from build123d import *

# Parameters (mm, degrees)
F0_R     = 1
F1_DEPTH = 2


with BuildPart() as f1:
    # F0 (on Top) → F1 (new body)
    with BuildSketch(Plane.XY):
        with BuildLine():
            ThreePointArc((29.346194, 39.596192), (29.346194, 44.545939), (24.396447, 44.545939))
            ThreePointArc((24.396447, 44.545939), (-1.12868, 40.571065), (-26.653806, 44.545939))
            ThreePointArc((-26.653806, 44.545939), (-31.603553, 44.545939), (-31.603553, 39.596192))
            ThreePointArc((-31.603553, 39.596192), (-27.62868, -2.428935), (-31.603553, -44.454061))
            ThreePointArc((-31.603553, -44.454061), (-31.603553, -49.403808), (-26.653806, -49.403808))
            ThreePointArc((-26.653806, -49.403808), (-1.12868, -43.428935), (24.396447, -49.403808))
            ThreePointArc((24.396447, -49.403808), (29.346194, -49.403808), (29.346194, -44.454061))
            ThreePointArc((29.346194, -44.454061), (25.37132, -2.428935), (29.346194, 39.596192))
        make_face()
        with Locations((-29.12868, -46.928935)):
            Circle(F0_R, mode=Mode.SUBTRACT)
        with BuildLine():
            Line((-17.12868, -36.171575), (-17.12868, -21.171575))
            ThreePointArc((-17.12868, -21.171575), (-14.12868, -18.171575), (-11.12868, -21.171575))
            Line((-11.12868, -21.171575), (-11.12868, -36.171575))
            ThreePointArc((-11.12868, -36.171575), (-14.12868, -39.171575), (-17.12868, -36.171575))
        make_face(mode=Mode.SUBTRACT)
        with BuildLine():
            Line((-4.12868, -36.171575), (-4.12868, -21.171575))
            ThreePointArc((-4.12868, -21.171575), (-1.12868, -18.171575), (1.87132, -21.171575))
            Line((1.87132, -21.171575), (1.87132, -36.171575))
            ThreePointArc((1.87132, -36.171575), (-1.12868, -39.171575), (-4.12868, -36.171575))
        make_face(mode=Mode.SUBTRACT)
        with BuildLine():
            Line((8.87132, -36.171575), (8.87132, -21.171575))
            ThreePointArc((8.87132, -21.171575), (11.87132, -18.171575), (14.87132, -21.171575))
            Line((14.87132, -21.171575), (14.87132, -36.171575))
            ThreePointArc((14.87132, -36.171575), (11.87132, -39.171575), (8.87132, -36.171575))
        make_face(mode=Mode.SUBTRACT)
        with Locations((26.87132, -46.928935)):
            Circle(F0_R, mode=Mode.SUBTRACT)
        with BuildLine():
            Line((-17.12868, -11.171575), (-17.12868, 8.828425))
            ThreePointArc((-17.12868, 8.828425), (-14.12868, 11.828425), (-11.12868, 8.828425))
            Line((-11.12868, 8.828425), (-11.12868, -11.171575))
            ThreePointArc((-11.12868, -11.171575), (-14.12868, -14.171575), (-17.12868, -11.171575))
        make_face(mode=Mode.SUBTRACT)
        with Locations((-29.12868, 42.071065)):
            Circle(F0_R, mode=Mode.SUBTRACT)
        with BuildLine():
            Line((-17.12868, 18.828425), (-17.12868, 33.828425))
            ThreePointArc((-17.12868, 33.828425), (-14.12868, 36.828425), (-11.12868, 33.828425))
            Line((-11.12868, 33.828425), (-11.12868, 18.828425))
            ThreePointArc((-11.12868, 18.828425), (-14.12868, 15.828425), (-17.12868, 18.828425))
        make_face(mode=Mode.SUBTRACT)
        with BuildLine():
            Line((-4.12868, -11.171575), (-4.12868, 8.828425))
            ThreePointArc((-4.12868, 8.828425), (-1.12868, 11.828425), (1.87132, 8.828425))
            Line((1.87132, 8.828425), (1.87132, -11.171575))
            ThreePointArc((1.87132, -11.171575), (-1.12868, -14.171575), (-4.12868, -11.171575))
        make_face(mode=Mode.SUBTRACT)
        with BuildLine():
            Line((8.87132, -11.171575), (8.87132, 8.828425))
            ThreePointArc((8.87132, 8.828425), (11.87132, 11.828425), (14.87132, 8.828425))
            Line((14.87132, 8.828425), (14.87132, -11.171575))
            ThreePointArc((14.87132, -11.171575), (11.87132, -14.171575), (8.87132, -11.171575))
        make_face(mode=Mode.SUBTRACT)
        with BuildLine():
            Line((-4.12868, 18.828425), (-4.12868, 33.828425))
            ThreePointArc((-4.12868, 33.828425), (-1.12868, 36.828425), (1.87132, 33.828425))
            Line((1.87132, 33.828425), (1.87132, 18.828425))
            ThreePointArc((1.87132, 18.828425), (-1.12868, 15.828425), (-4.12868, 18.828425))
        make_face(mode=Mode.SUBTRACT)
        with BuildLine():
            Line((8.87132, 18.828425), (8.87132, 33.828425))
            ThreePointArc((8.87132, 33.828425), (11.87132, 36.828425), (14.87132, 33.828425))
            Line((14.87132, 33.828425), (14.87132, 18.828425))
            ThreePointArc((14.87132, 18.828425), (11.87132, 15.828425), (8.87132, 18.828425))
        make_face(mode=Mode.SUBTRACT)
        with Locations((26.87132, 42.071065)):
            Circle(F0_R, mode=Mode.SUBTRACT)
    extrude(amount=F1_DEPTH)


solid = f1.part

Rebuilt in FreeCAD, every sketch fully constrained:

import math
import FreeCAD as App
import Part
import Sketcher

V = App.Vector
Q = App.Units.Quantity

doc = App.newDocument("Part")
body = doc.addObject("PartDesign::Body", "Body")

sketch1 = doc.addObject("Sketcher::SketchObject", "Sketch")
body.addObject(sketch1)
sketch1.AttachmentSupport = (doc.XY_Plane, [""])
sketch1.MapMode = "FlatFace"
sketch1.addGeometry([
    Part.ArcOfCircle(Part.Circle(V(26.87132, 42.071066, 0), V(0, 0, 1), 3.5), math.radians(-45), math.radians(135)),
    Part.ArcOfCircle(Part.Circle(V(-1.12868, 124.514821, 0), V(0, 0, 1), 83.943756), math.radians(-107.702471), math.radians(-72.297529)),
    Part.ArcOfCircle(Part.Circle(V(-29.12868, 42.071066, 0), V(0, 0, 1), 3.5), math.radians(45), math.radians(225)),
    Part.ArcOfCircle(Part.Circle(V(-251.775574, -2.428934, 0), V(0, 0, 1), 224.146894), math.radians(-10.806294), math.radians(10.806294)),
    Part.ArcOfCircle(Part.Circle(V(-29.12868, -46.928934, 0), V(0, 0, 1), 3.5), math.radians(135), math.radians(315)),
    Part.ArcOfCircle(Part.Circle(V(-1.12868, -100.939044, 0), V(0, 0, 1), 57.510109), math.radians(63.651032), math.radians(116.348968)),
    Part.ArcOfCircle(Part.Circle(V(26.87132, -46.928934, 0), V(0, 0, 1), 3.5), math.radians(-135), math.radians(45)),
    Part.ArcOfCircle(Part.Circle(V(249.518158, -2.428934, 0), V(0, 0, 1), 224.146838), math.radians(169.193703), math.radians(190.806297)),
    Part.Circle(V(-29.12868, -46.928935, 0), V(0, 0, 1), 1),
    Part.ArcOfCircle(Part.Circle(V(-14.12868, -36.171575, 0), V(0, 0, 1), 3), math.radians(180), math.radians(360)),
    Part.LineSegment(V(-17.12868, -36.171575, 0), V(-17.12868, -21.171575, 0)),
    Part.ArcOfCircle(Part.Circle(V(-14.12868, -21.171575, 0), V(0, 0, 1), 3), math.radians(0), math.radians(180)),
    Part.LineSegment(V(-11.12868, -21.171575, 0), V(-11.12868, -36.171575, 0)),
    Part.ArcOfCircle(Part.Circle(V(-1.12868, -36.171575, 0), V(0, 0, 1), 3), math.radians(180), math.radians(360)),
    Part.LineSegment(V(-4.12868, -36.171575, 0), V(-4.12868, -21.171575, 0)),
    Part.ArcOfCircle(Part.Circle(V(-1.12868, -21.171575, 0), V(0, 0, 1), 3), math.radians(0), math.radians(180)),
    Part.LineSegment(V(1.87132, -21.171575, 0), V(1.87132, -36.171575, 0)),
    Part.ArcOfCircle(Part.Circle(V(11.87132, -36.171575, 0), V(0, 0, 1), 3), math.radians(180), math.radians(360)),
    Part.LineSegment(V(8.87132, -36.171575, 0), V(8.87132, -21.171575, 0)),
    Part.ArcOfCircle(Part.Circle(V(11.87132, -21.171575, 0), V(0, 0, 1), 3), math.radians(0), math.radians(180)),
    Part.LineSegment(V(14.87132, -21.171575, 0), V(14.87132, -36.171575, 0)),
    Part.Circle(V(26.87132, -46.928935, 0), V(0, 0, 1), 1),
    Part.ArcOfCircle(Part.Circle(V(-14.12868, -11.171575, 0), V(0, 0, 1), 3), math.radians(180), math.radians(360)),
    Part.LineSegment(V(-17.12868, -11.171575, 0), V(-17.12868, 8.828425, 0)),
    Part.ArcOfCircle(Part.Circle(V(-14.12868, 8.828425, 0), V(0, 0, 1), 3), math.radians(0), math.radians(180)),
    Part.LineSegment(V(-11.12868, 8.828425, 0), V(-11.12868, -11.171575, 0)),
    Part.ArcOfCircle(Part.Circle(V(-1.12868, -11.171575, 0), V(0, 0, 1), 3), math.radians(180), math.radians(360)),
    Part.LineSegment(V(-4.12868, -11.171575, 0), V(-4.12868, 8.828425, 0)),
    Part.ArcOfCircle(Part.Circle(V(-1.12868, 8.828425, 0), V(0, 0, 1), 3), math.radians(0), math.radians(180)),
    Part.LineSegment(V(1.87132, 8.828425, 0), V(1.87132, -11.171575, 0)),
    Part.Circle(V(-29.12868, 42.071065, 0), V(0, 0, 1), 1),
    Part.ArcOfCircle(Part.Circle(V(-14.12868, 18.828425, 0), V(0, 0, 1), 3), math.radians(180), math.radians(360)),
    Part.LineSegment(V(-17.12868, 18.828425, 0), V(-17.12868, 33.828425, 0)),
    Part.ArcOfCircle(Part.Circle(V(-14.12868, 33.828425, 0), V(0, 0, 1), 3), math.radians(0), math.radians(180)),
    Part.LineSegment(V(-11.12868, 33.828425, 0), V(-11.12868, 18.828425, 0)),
    Part.ArcOfCircle(Part.Circle(V(-1.12868, 18.828425, 0), V(0, 0, 1), 3), math.radians(180), math.radians(360)),
    Part.LineSegment(V(-4.12868, 18.828425, 0), V(-4.12868, 33.828425, 0)),
    Part.ArcOfCircle(Part.Circle(V(-1.12868, 33.828425, 0), V(0, 0, 1), 3), math.radians(0), math.radians(180)),
    Part.LineSegment(V(1.87132, 33.828425, 0), V(1.87132, 18.828425, 0)),
    Part.ArcOfCircle(Part.Circle(V(11.87132, -11.171575, 0), V(0, 0, 1), 3), math.radians(180), math.radians(360)),
    Part.LineSegment(V(8.87132, -11.171575, 0), V(8.87132, 8.828425, 0)),
    Part.ArcOfCircle(Part.Circle(V(11.87132, 8.828425, 0), V(0, 0, 1), 3), math.radians(0), math.radians(180)),
    Part.LineSegment(V(14.87132, 8.828425, 0), V(14.87132, -11.171575, 0)),
    Part.ArcOfCircle(Part.Circle(V(11.87132, 18.828425, 0), V(0, 0, 1), 3), math.radians(180), math.radians(360)),
    Part.LineSegment(V(8.87132, 18.828425, 0), V(8.87132, 33.828425, 0)),
    Part.ArcOfCircle(Part.Circle(V(11.87132, 33.828425, 0), V(0, 0, 1), 3), math.radians(0), math.radians(180)),
    Part.LineSegment(V(14.87132, 33.828425, 0), V(14.87132, 18.828425, 0)),
    Part.Circle(V(26.87132, 42.071065, 0), V(0, 0, 1), 1),
], False)
sketch1.addConstraint([
    Sketcher.Constraint("Coincident", 0, 2, 1, 2),
    Sketcher.Constraint("Coincident", 1, 1, 2, 1),
    Sketcher.Constraint("Coincident", 2, 2, 3, 2),
    Sketcher.Constraint("Coincident", 3, 1, 4, 1),
    Sketcher.Constraint("Coincident", 4, 2, 5, 2),
    Sketcher.Constraint("Coincident", 5, 1, 6, 1),
    Sketcher.Constraint("Coincident", 6, 2, 7, 2),
    Sketcher.Constraint("Coincident", 7, 1, 0, 1),
    Sketcher.Constraint("Tangent", 9, 1, 10, 1),
    Sketcher.Constraint("Tangent", 10, 2, 11, 2),
    Sketcher.Constraint("Tangent", 11, 1, 12, 1),
    Sketcher.Constraint("Tangent", 12, 2, 9, 2),
    Sketcher.Constraint("Tangent", 13, 1, 14, 1),
    Sketcher.Constraint("Tangent", 14, 2, 15, 2),
    Sketcher.Constraint("Tangent", 15, 1, 16, 1),
    Sketcher.Constraint("Tangent", 16, 2, 13, 2),
    Sketcher.Constraint("Tangent", 17, 1, 18, 1),
    Sketcher.Constraint("Tangent", 18, 2, 19, 2),
    Sketcher.Constraint("Tangent", 19, 1, 20, 1),
    Sketcher.Constraint("Tangent", 20, 2, 17, 2),
    Sketcher.Constraint("Tangent", 22, 1, 23, 1),
    Sketcher.Constraint("Tangent", 23, 2, 24, 2),
    Sketcher.Constraint("Tangent", 24, 1, 25, 1),
    Sketcher.Constraint("Tangent", 25, 2, 22, 2),
    Sketcher.Constraint("Tangent", 26, 1, 27, 1),
    Sketcher.Constraint("Tangent", 27, 2, 28, 2),
    Sketcher.Constraint("Tangent", 28, 1, 29, 1),
    Sketcher.Constraint("Tangent", 29, 2, 26, 2),
    Sketcher.Constraint("Tangent", 31, 1, 32, 1),
    Sketcher.Constraint("Tangent", 32, 2, 33, 2),
    Sketcher.Constraint("Tangent", 33, 1, 34, 1),
    Sketcher.Constraint("Tangent", 34, 2, 31, 2),
    Sketcher.Constraint("Tangent", 35, 1, 36, 1),
    Sketcher.Constraint("Tangent", 36, 2, 37, 2),
    Sketcher.Constraint("Tangent", 37, 1, 38, 1),
    Sketcher.Constraint("Tangent", 38, 2, 35, 2),
    Sketcher.Constraint("Tangent", 39, 1, 40, 1),
    Sketcher.Constraint("Tangent", 40, 2, 41, 2),
    Sketcher.Constraint("Tangent", 41, 1, 42, 1),
    Sketcher.Constraint("Tangent", 42, 2, 39, 2),
    Sketcher.Constraint("Tangent", 43, 1, 44, 1),
    Sketcher.Constraint("Tangent", 44, 2, 45, 2),
    Sketcher.Constraint("Tangent", 45, 1, 46, 1),
    Sketcher.Constraint("Tangent", 46, 2, 43, 2),
    Sketcher.Constraint("Vertical", 10),
    Sketcher.Constraint("Vertical", 12),
    Sketcher.Constraint("Vertical", 14),
    Sketcher.Constraint("Vertical", 16),
    Sketcher.Constraint("Vertical", 18),
    Sketcher.Constraint("Vertical", 20),
    Sketcher.Constraint("Vertical", 23),
    Sketcher.Constraint("Vertical", 25),
    Sketcher.Constraint("Vertical", 27),
    Sketcher.Constraint("Vertical", 29),
    Sketcher.Constraint("Vertical", 32),
    Sketcher.Constraint("Vertical", 34),
    Sketcher.Constraint("Vertical", 36),
    Sketcher.Constraint("Vertical", 38),
    Sketcher.Constraint("Vertical", 40),
    Sketcher.Constraint("Vertical", 42),
    Sketcher.Constraint("Vertical", 44),
    Sketcher.Constraint("Vertical", 46),
    Sketcher.Constraint("Coincident", 8, 3, 4, 3),
    Sketcher.Constraint("Coincident", 21, 3, 6, 3),
    Sketcher.Constraint("Coincident", 30, 3, 2, 3),
    Sketcher.Constraint("Coincident", 47, 3, 0, 3),
    Sketcher.Constraint("Equal", 0, 2),
    Sketcher.Constraint("Equal", 2, 4),
    Sketcher.Constraint("Equal", 4, 6),
    Sketcher.Constraint("Equal", 11, 13),
    Sketcher.Constraint("Equal", 15, 17),
    Sketcher.Constraint("Equal", 8, 21),
    Sketcher.Constraint("Equal", 19, 22),
    Sketcher.Constraint("Equal", 24, 26),
    Sketcher.Constraint("Equal", 21, 30),
    Sketcher.Constraint("Equal", 28, 31),
    Sketcher.Constraint("Equal", 33, 35),
    Sketcher.Constraint("Equal", 37, 39),
    Sketcher.Constraint("Equal", 41, 43),
    Sketcher.Constraint("Equal", 30, 47),
    Sketcher.Constraint("Horizontal", 0, 3, 2, 3),
    Sketcher.Constraint("Horizontal", 4, 3, 6, 3),
    Sketcher.Constraint("Horizontal", 3, 3, 7, 3),
    Sketcher.Constraint("Horizontal", 9, 3, 13, 3),
    Sketcher.Constraint("Horizontal", 11, 3, 15, 3),
    Sketcher.Constraint("Horizontal", 13, 3, 17, 3),
    Sketcher.Constraint("Horizontal", 15, 3, 19, 3),
    Sketcher.Constraint("Horizontal", 22, 3, 26, 3),
    Sketcher.Constraint("Horizontal", 24, 3, 28, 3),
    Sketcher.Constraint("Horizontal", 31, 3, 35, 3),
    Sketcher.Constraint("Horizontal", 33, 3, 37, 3),
    Sketcher.Constraint("Horizontal", 26, 3, 39, 3),
    Sketcher.Constraint("Horizontal", 28, 3, 41, 3),
    Sketcher.Constraint("Horizontal", 35, 3, 43, 3),
    Sketcher.Constraint("Horizontal", 37, 3, 45, 3),
    Sketcher.Constraint("Horizontal", 0, 2, 1, 1),
    Sketcher.Constraint("Horizontal", 4, 2, 5, 1),
    Sketcher.Constraint("Horizontal", 3, 1, 6, 2),
    Sketcher.Constraint("Horizontal", 2, 2, 7, 1),
    Sketcher.Constraint("Vertical", 2, 3, 4, 3),
    Sketcher.Constraint("Vertical", 5, 3, 13, 3),
    Sketcher.Constraint("Vertical", 11, 3, 22, 3),
    Sketcher.Constraint("Vertical", 15, 3, 26, 3),
    Sketcher.Constraint("Vertical", 24, 3, 31, 3),
    Sketcher.Constraint("Vertical", 28, 3, 35, 3),
    Sketcher.Constraint("Vertical", 19, 3, 39, 3),
    Sketcher.Constraint("Vertical", 41, 3, 43, 3),
    Sketcher.Constraint("Vertical", 2, 2, 3, 1),
    Sketcher.Constraint("Vertical", 1, 1, 4, 2),
    Sketcher.Constraint("Equal", 20, 32),
    Sketcher.Constraint("Diameter", 8, Q("2 mm")),
    Sketcher.Constraint("Radius", 9, Q("3 mm")),
    Sketcher.Constraint("Radius", 0, Q("3.5 mm")),
    Sketcher.Constraint("DistanceY", 10, 1, 10, 2, Q("15 mm")),
    Sketcher.Constraint("DistanceY", 23, 1, 23, 2, Q("20 mm")),
    Sketcher.Constraint("Radius", 5, Q("57.510109 mm")),
    Sketcher.Constraint("Radius", 7, Q("224.146838 mm")),
    Sketcher.Constraint("Radius", 1, Q("83.943756 mm")),
    Sketcher.Constraint("Radius", 3, Q("224.146894 mm")),
    Sketcher.Constraint("DistanceX", -1, 1, 0, 3, Q("26.87132 mm")),
    Sketcher.Constraint("DistanceX", 1, 3, -1, 1, Q("1.12868 mm")),
    Sketcher.Constraint("DistanceY", -1, 1, 1, 3, Q("124.514821 mm")),
    Sketcher.Constraint("DistanceX", -1, 1, 7, 3, Q("249.518158 mm")),
    Sketcher.Constraint("DistanceX", 9, 3, -1, 1, Q("14.12868 mm")),
    Sketcher.Constraint("DistanceX", -1, 1, 17, 3, Q("11.87132 mm")),
    Sketcher.Constraint("DistanceY", -1, 1, 0, 2, Q("44.545939 mm")),
    Sketcher.Constraint("DistanceY", -1, 1, 2, 2, Q("39.596192 mm")),
    Sketcher.Constraint("DistanceY", 9, 3, -1, 1, Q("36.171575 mm")),
    Sketcher.Constraint("DistanceY", 22, 3, -1, 1, Q("11.171575 mm")),
    Sketcher.Constraint("DistanceY", -1, 1, 31, 3, Q("18.828425 mm")),
])
pad1 = doc.addObject("PartDesign::Pad", "Pad")
body.addObject(pad1)
pad1.Profile = sketch1
pad1.Length = 2

doc.recompute()
